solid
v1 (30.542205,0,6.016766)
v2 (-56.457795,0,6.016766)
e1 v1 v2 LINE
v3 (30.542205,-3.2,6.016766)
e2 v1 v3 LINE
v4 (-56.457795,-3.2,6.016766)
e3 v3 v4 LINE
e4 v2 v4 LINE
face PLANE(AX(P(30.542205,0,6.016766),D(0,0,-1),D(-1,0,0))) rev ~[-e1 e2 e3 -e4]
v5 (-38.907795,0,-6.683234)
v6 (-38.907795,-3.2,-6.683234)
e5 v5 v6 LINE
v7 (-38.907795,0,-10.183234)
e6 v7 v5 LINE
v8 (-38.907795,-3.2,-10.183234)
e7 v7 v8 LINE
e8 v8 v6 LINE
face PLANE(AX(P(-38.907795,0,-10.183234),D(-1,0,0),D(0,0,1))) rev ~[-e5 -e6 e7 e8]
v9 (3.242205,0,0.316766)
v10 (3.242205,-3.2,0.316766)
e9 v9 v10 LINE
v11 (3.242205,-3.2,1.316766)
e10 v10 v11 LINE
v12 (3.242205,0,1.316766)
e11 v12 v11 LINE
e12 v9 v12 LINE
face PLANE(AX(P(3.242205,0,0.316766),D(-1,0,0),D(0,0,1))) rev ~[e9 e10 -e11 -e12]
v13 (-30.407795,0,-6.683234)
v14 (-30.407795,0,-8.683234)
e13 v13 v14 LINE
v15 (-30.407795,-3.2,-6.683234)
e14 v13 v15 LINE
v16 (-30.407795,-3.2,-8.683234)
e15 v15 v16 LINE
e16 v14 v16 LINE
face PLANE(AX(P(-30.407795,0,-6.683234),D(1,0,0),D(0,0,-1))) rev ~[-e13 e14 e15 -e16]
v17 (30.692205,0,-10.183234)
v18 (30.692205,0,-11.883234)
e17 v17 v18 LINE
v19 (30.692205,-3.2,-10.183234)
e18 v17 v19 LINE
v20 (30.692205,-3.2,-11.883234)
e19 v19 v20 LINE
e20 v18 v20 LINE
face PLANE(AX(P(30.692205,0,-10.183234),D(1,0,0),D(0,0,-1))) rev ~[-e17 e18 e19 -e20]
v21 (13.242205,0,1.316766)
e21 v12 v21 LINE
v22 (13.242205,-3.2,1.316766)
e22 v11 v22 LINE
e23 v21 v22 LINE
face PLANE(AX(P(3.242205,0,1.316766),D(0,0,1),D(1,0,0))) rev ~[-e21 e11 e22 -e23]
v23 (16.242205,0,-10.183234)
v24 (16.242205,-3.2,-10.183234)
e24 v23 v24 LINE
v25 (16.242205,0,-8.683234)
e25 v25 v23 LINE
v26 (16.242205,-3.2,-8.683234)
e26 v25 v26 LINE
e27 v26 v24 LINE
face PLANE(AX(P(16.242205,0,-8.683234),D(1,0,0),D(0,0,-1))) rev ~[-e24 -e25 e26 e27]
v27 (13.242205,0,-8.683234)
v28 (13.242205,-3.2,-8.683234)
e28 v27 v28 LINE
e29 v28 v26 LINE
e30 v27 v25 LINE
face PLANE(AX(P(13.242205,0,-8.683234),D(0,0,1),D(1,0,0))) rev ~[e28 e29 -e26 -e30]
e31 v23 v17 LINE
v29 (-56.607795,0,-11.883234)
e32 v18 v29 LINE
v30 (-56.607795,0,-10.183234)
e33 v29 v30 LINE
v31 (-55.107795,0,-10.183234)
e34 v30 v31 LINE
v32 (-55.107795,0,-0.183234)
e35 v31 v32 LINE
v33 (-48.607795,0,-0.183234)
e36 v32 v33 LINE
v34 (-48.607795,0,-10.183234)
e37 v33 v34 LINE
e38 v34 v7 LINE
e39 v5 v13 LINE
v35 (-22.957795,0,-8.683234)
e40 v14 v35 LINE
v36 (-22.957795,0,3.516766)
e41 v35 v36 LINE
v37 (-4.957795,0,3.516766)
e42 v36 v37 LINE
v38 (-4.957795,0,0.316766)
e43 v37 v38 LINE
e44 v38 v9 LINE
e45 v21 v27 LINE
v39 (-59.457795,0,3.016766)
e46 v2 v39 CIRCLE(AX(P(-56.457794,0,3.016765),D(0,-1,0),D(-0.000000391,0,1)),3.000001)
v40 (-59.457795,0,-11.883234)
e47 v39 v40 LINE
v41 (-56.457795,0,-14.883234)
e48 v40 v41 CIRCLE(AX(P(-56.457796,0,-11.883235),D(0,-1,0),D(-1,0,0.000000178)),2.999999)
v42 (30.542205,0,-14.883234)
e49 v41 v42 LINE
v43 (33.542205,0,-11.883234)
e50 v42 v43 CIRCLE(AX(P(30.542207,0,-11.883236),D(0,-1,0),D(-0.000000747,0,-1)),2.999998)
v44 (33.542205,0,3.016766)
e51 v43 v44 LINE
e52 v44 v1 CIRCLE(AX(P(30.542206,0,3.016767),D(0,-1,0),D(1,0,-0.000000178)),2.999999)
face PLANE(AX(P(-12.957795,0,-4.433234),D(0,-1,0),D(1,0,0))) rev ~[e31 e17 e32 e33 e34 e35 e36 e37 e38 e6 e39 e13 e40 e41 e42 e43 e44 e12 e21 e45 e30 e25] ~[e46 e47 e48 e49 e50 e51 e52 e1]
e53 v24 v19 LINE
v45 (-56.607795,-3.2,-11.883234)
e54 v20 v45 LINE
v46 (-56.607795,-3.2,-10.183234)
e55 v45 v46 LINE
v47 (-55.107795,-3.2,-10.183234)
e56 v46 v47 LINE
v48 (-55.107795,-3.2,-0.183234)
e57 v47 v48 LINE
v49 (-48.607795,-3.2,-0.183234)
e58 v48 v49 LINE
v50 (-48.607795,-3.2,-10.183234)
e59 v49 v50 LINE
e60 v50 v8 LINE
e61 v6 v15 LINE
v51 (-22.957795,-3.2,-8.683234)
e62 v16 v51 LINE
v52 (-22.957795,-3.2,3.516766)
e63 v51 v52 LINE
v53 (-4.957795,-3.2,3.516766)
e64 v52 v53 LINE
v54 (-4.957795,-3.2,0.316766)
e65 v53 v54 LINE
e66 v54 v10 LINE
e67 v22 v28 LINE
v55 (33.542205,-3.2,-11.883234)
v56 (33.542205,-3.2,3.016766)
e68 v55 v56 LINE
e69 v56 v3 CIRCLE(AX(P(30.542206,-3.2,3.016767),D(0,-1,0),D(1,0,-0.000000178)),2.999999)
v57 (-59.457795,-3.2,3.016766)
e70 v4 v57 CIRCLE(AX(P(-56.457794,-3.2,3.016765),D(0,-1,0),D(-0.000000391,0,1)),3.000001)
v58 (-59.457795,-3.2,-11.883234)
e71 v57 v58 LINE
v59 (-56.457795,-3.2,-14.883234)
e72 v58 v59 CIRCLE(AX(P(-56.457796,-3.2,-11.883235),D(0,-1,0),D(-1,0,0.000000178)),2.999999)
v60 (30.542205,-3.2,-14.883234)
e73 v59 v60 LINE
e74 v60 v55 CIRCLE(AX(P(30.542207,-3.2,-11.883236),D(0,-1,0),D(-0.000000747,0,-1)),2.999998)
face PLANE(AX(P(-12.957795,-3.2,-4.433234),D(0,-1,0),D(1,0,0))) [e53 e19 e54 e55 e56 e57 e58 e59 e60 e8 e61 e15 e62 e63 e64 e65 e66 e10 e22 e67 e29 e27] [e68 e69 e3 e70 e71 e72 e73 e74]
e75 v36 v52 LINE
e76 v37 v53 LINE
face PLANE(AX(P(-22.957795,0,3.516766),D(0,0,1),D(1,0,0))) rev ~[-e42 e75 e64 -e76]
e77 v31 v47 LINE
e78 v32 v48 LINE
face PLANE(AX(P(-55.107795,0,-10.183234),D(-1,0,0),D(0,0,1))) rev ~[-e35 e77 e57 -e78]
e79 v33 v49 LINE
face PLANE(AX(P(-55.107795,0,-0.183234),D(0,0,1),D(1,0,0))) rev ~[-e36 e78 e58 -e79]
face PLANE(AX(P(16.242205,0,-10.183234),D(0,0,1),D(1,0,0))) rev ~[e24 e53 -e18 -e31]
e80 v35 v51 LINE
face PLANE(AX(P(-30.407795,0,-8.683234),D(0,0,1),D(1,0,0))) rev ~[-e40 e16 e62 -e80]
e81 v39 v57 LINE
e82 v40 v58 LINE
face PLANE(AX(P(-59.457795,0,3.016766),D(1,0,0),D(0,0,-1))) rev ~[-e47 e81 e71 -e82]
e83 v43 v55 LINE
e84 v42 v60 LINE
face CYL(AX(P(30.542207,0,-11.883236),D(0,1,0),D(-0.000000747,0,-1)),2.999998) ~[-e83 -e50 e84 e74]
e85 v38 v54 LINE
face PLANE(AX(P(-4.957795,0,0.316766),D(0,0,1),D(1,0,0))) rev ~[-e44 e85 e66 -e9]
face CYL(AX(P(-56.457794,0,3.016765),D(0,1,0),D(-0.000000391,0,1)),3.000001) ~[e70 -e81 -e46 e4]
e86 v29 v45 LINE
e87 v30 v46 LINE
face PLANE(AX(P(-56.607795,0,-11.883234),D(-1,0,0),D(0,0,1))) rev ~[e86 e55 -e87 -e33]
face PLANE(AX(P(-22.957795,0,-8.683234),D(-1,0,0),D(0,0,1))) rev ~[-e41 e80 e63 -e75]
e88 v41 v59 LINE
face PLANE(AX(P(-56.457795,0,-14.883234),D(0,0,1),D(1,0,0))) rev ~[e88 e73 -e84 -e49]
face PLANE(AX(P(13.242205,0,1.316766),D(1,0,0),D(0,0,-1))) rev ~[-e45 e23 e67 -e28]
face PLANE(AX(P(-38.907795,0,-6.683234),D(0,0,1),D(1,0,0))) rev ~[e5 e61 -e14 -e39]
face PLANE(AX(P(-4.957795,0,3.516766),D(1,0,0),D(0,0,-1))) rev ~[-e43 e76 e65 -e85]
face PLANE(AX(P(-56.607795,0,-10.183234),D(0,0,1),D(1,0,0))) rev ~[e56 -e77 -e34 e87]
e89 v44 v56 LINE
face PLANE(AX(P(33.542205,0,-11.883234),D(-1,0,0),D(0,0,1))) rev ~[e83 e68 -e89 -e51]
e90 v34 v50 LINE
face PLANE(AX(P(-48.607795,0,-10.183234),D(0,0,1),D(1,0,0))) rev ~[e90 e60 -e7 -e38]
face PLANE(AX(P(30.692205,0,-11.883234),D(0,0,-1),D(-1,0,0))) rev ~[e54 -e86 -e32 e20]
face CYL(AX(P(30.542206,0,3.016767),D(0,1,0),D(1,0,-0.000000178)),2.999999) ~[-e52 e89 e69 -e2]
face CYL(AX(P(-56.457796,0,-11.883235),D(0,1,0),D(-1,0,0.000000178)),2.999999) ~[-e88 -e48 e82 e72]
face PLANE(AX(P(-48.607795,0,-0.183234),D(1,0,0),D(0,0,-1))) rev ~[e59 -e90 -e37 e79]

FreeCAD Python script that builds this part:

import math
import FreeCAD as App
import Part
import Sketcher

V = App.Vector
Q = App.Units.Quantity

doc = App.newDocument("Part")
body = doc.addObject("PartDesign::Body", "Body")

sketch1 = doc.addObject("Sketcher::SketchObject", "Sketch")
body.addObject(sketch1)
sketch1.AttachmentSupport = (doc.XZ_Plane, [""])
sketch1.MapMode = "FlatFace"
sketch1.addGeometry([
    Part.LineSegment(V(30.542205, 6.016766, 0), V(-56.457795, 6.016766, 0)),
    Part.ArcOfCircle(Part.Circle(V(-56.457794, 3.016765, 0), V(0, 0, 1), 3.000001), math.radians(90.000022), math.radians(179.999978)),
    Part.LineSegment(V(-59.457795, 3.016766, 0), V(-59.457795, -11.883234, 0)),
    Part.ArcOfCircle(Part.Circle(V(-56.457796, -11.883235, 0), V(0, 0, 1), 2.999999), math.radians(179.99999), math.radians(270.00001)),
    Part.LineSegment(V(-56.457795, -14.883234, 0), V(30.542205, -14.883234, 0)),
    Part.ArcOfCircle(Part.Circle(V(30.542207, -11.883236, 0), V(0, 0, 1), 2.999998), math.radians(-90.000043), math.radians(0.000043)),
    Part.LineSegment(V(33.542205, -11.883234, 0), V(33.542205, 3.016766, 0)),
    Part.ArcOfCircle(Part.Circle(V(30.542206, 3.016767, 0), V(0, 0, 1), 2.999999), math.radians(-0.00001), math.radians(90.00001)),
    Part.LineSegment(V(3.242205, 1.316766, 0), V(13.242205, 1.316766, 0)),
    Part.LineSegment(V(13.242205, 1.316766, 0), V(13.242205, -8.683234, 0)),
    Part.LineSegment(V(13.242205, -8.683234, 0), V(16.242205, -8.683234, 0)),
    Part.LineSegment(V(16.242205, -8.683234, 0), V(16.242205, -10.183234, 0)),
    Part.LineSegment(V(16.242205, -10.183234, 0), V(30.692205, -10.183234, 0)),
    Part.LineSegment(V(30.692205, -10.183234, 0), V(30.692205, -11.883234, 0)),
    Part.LineSegment(V(30.692205, -11.883234, 0), V(-56.607795, -11.883234, 0)),
    Part.LineSegment(V(-56.607795, -11.883234, 0), V(-56.607795, -10.183234, 0)),
    Part.LineSegment(V(-56.607795, -10.183234, 0), V(-55.107795, -10.183234, 0)),
    Part.LineSegment(V(-55.107795, -10.183234, 0), V(-55.107795, -0.183234, 0)),
    Part.LineSegment(V(-55.107795, -0.183234, 0), V(-48.607795, -0.183234, 0)),
    Part.LineSegment(V(-48.607795, -0.183234, 0), V(-48.607795, -10.183234, 0)),
    Part.LineSegment(V(-48.607795, -10.183234, 0), V(-38.907795, -10.183234, 0)),
    Part.LineSegment(V(-38.907795, -10.183234, 0), V(-38.907795, -6.683234, 0)),
    Part.LineSegment(V(-38.907795, -6.683234, 0), V(-30.407795, -6.683234, 0)),
    Part.LineSegment(V(-30.407795, -6.683234, 0), V(-30.407795, -8.683234, 0)),
    Part.LineSegment(V(-30.407795, -8.683234, 0), V(-22.957795, -8.683234, 0)),
    Part.LineSegment(V(-22.957795, -8.683234, 0), V(-22.957795, 3.516766, 0)),
    Part.LineSegment(V(-22.957795, 3.516766, 0), V(-4.957795, 3.516766, 0)),
    Part.LineSegment(V(-4.957795, 3.516766, 0), V(-4.957795, 0.316766, 0)),
    Part.LineSegment(V(-4.957795, 0.316766, 0), V(3.242205, 0.316766, 0)),
    Part.LineSegment(V(3.242205, 0.316766, 0), V(3.242205, 1.316766, 0)),
], False)
sketch1.addConstraint([
    Sketcher.Constraint("Tangent", 0, 2, 1, 1),
    Sketcher.Constraint("Tangent", 1, 2, 2, 1),
    Sketcher.Constraint("Tangent", 2, 2, 3, 1),
    Sketcher.Constraint("Tangent", 3, 2, 4, 1),
    Sketcher.Constraint("Tangent", 4, 2, 5, 1),
    Sketcher.Constraint("Tangent", 5, 2, 6, 1),
    Sketcher.Constraint("Tangent", 6, 2, 7, 1),
    Sketcher.Constraint("Tangent", 7, 2, 0, 1),
    Sketcher.Constraint("Coincident", 8, 2, 9, 1),
    Sketcher.Constraint("Coincident", 9, 2, 10, 1),
    Sketcher.Constraint("Coincident", 10, 2, 11, 1),
    Sketcher.Constraint("Coincident", 11, 2, 12, 1),
    Sketcher.Constraint("Coincident", 12, 2, 13, 1),
    Sketcher.Constraint("Coincident", 13, 2, 14, 1),
    Sketcher.Constraint("Coincident", 14, 2, 15, 1),
    Sketcher.Constraint("Coincident", 15, 2, 16, 1),
    Sketcher.Constraint("Coincident", 16, 2, 17, 1),
    Sketcher.Constraint("Coincident", 17, 2, 18, 1),
    Sketcher.Constraint("Coincident", 18, 2, 19, 1),
    Sketcher.Constraint("Coincident", 19, 2, 20, 1),
    Sketcher.Constraint("Coincident", 20, 2, 21, 1),
    Sketcher.Constraint("Coincident", 21, 2, 22, 1),
    Sketcher.Constraint("Coincident", 22, 2, 23, 1),
    Sketcher.Constraint("Coincident", 23, 2, 24, 1),
    Sketcher.Constraint("Coincident", 24, 2, 25, 1),
    Sketcher.Constraint("Coincident", 25, 2, 26, 1),
    Sketcher.Constraint("Coincident", 26, 2, 27, 1),
    Sketcher.Constraint("Coincident", 27, 2, 28, 1),
    Sketcher.Constraint("Coincident", 28, 2, 29, 1),
    Sketcher.Constraint("Coincident", 29, 2, 8, 1),
    Sketcher.Constraint("Horizontal", 0),
    Sketcher.Constraint("Vertical", 2),
    Sketcher.Constraint("Horizontal", 4),
    Sketcher.Constraint("Vertical", 6),
    Sketcher.Constraint("Horizontal", 8),
    Sketcher.Constraint("Vertical", 9),
    Sketcher.Constraint("Horizontal", 10),
    Sketcher.Constraint("Vertical", 11),
    Sketcher.Constraint("Horizontal", 12),
    Sketcher.Constraint("Vertical", 13),
    Sketcher.Constraint("Horizontal", 14),
    Sketcher.Constraint("Vertical", 15),
    Sketcher.Constraint("Horizontal", 16),
    Sketcher.Constraint("Vertical", 17),
    Sketcher.Constraint("Horizontal", 18),
    Sketcher.Constraint("Vertical", 19),
    Sketcher.Constraint("Horizontal", 20),
    Sketcher.Constraint("Vertical", 21),
    Sketcher.Constraint("Horizontal", 22),
    Sketcher.Constraint("Vertical", 23),
    Sketcher.Constraint("Horizontal", 24),
    Sketcher.Constraint("Vertical", 25),
    Sketcher.Constraint("Horizontal", 26),
    Sketcher.Constraint("Vertical", 27),
    Sketcher.Constraint("Horizontal", 28),
    Sketcher.Constraint("Vertical", 29),
    Sketcher.Constraint("Equal", 1, 3),
    Sketcher.Constraint("Equal", 3, 5),
    Sketcher.Constraint("Equal", 5, 7),
    Sketcher.Constraint("Horizontal", 5, 2, 13, 2),
    Sketcher.Constraint("Horizontal", 12, 2, 15, 2),
    Sketcher.Constraint("Horizontal", 16, 2, 19, 2),
    Sketcher.Constraint("Horizontal", 10, 2, 23, 2),
    Sketcher.Constraint("Equal", 8, 9),
    Sketcher.Constraint("Equal", 16, 11),
    Sketcher.Constraint("Equal", 9, 17),
    Sketcher.Constraint("Radius", 1, Q("3.000001 mm")),
    Sketcher.Constraint("DistanceX", 0, 2, 0, 1, Q("87 mm")),
    Sketcher.Constraint("DistanceX", 8, 1, 8, 2, Q("10 mm")),
    Sketcher.Constraint("DistanceX", 10, 1, 10, 2, Q("3 mm")),
    Sketcher.Constraint("DistanceX", 26, 1, 26, 2, Q("18 mm")),
    Sketcher.Constraint("DistanceY", 23, 2, 23, 1, Q("2 mm")),
    Sketcher.Constraint("DistanceY", 29, 1, 29, 2, Q("1 mm")),
    Sketcher.Constraint("DistanceX", 14, 2, 14, 1, Q("87.3 mm")),
    Sketcher.Constraint("DistanceX", 16, 1, 16, 2, Q("1.5 mm")),
    Sketcher.Constraint("DistanceX", 18, 1, 18, 2, Q("6.5 mm")),
    Sketcher.Constraint("DistanceX", 20, 1, 20, 2, Q("9.7 mm")),
    Sketcher.Constraint("DistanceX", 22, 1, 22, 2, Q("8.5 mm")),
    Sketcher.Constraint("DistanceX", 28, 1, 28, 2, Q("8.2 mm")),
    Sketcher.Constraint("DistanceY", 2, 2, 2, 1, Q("14.9 mm")),
    Sketcher.Constraint("DistanceY", 13, 2, 13, 1, Q("1.7 mm")),
    Sketcher.Constraint("DistanceY", 25, 1, 25, 2, Q("12.2 mm")),
    Sketcher.Constraint("DistanceX", 12, 1, 12, 2, Q("14.45 mm")),
    Sketcher.Constraint("DistanceX", 8, 2, 7, 3, Q("17.300001 mm")),
    Sketcher.Constraint("DistanceX", 1, 3, -1, 1, Q("56.457794 mm")),
    Sketcher.Constraint("DistanceY", -1, 1, 1, 3, Q("3.016765 mm")),
])
pad1 = doc.addObject("PartDesign::Pad", "Pad")
body.addObject(pad1)
pad1.Profile = sketch1
pad1.Length = 3.2

doc.recompute()
